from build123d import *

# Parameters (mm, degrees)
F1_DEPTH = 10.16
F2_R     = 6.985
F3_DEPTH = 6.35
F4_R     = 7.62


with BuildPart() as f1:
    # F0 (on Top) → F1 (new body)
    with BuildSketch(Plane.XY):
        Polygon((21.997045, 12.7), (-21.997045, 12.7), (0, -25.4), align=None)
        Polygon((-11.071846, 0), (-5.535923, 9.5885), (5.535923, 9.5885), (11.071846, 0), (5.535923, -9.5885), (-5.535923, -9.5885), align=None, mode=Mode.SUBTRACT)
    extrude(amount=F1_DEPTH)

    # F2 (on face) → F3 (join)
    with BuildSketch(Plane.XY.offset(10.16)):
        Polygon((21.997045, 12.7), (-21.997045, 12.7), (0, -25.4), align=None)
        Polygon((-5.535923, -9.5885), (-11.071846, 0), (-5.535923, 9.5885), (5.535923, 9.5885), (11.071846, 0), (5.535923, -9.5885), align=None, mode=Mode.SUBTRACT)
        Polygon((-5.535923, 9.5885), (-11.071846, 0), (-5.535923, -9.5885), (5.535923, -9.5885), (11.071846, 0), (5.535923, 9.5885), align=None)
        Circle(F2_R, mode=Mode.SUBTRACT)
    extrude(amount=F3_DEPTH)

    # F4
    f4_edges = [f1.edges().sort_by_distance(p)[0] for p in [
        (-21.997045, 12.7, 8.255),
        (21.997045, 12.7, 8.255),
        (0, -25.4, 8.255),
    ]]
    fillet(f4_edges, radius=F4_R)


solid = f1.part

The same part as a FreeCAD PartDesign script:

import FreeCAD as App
import Part
import Sketcher

V = App.Vector
Q = App.Units.Quantity


def edges_at(feature, points):
    """Names of the edges that pass closest to the given points."""
    edges = feature.Shape.Edges
    near = lambda p: min(range(len(edges)), key=lambda i: edges[i].distToShape(Part.Vertex(*p))[0])
    return sorted({f"Edge{near(p) + 1}" for p in points})

doc = App.newDocument("Part")
body = doc.addObject("PartDesign::Body", "Body")

sketch1 = body.newObject("Sketcher::SketchObject", "Sketch")
sketch1.AttachmentSupport = (doc.getObject("XY_Plane"), [""])
sketch1.MapMode = "FlatFace"
sketch1.addGeometry(Part.LineSegment(V(21.997045, 12.7, 0), V(-21.997045, 12.7, 0)), False)
sketch1.addGeometry(Part.LineSegment(V(-21.997045, 12.7, 0), V(0, -25.4, 0)), False)
sketch1.addGeometry(Part.LineSegment(V(0, -25.4, 0), V(21.997045, 12.7, 0)), False)
sketch1.addGeometry(Part.LineSegment(V(-5.535923, -9.5885, 0), V(-11.071846, 0, 0)), False)
sketch1.addGeometry(Part.LineSegment(V(-11.071846, 0, 0), V(-5.535923, 9.5885, 0)), False)
sketch1.addGeometry(Part.LineSegment(V(-5.535923, 9.5885, 0), V(5.535923, 9.5885, 0)), False)
sketch1.addGeometry(Part.LineSegment(V(5.535923, 9.5885, 0), V(11.071846, 0, 0)), False)
sketch1.addGeometry(Part.LineSegment(V(11.071846, 0, 0), V(5.535923, -9.5885, 0)), False)
sketch1.addGeometry(Part.LineSegment(V(5.535923, -9.5885, 0), V(-5.535923, -9.5885, 0)), False)
sketch1.addConstraint(Sketcher.Constraint("Coincident", 0, 2, 1, 1))
sketch1.addConstraint(Sketcher.Constraint("Coincident", 1, 2, 2, 1))
sketch1.addConstraint(Sketcher.Constraint("Coincident", 2, 2, 0, 1))
sketch1.addConstraint(Sketcher.Constraint("Coincident", 3, 2, 4, 1))
sketch1.addConstraint(Sketcher.Constraint("Coincident", 4, 2, 5, 1))
sketch1.addConstraint(Sketcher.Constraint("Coincident", 5, 2, 6, 1))
sketch1.addConstraint(Sketcher.Constraint("Coincident", 6, 2, 7, 1))
sketch1.addConstraint(Sketcher.Constraint("Coincident", 7, 2, 8, 1))
sketch1.addConstraint(Sketcher.Constraint("Coincident", 8, 2, 3, 1))
sketch1.addConstraint(Sketcher.Constraint("Horizontal", 0))
sketch1.addConstraint(Sketcher.Constraint("Horizontal", 5))
sketch1.addConstraint(Sketcher.Constraint("Horizontal", 8))
sketch1.addConstraint(Sketcher.Constraint("Symmetric", 3, 2, 6, 2, -1, 1))
sketch1.addConstraint(Sketcher.Constraint("Symmetric", 4, 2, 7, 2, -1, 1))
sketch1.addConstraint(Sketcher.Constraint("PointOnObject", 1, 2, -2))
sketch1.addConstraint(Sketcher.Constraint("PointOnObject", 3, 2, -1))
sketch1.addConstraint(Sketcher.Constraint("Parallel", 1, 3))
sketch1.addConstraint(Sketcher.Constraint("Parallel", 2, 4))
sketch1.addConstraint(Sketcher.Constraint("Parallel", 3, 6))
sketch1.addConstraint(Sketcher.Constraint("Vertical", 5, 2, 7, 2))
sketch1.addConstraint(Sketcher.Constraint("DistanceY", 1, 2, -1, 1, Q("1 in")))
sketch1.addConstraint(Sketcher.Constraint("Angle", 1, Q("-60 deg")))
sketch1.addConstraint(Sketcher.Constraint("DistanceY", -1, 1, 0, 2, Q("0.5 in")))
sketch1.addConstraint(Sketcher.Constraint("DistanceY", 7, 2, 5, 2, Q("0.755 in")))
sketch1.addConstraint(Sketcher.Constraint("DistanceX", 0, 2, 3, 2, Q("10.925199 mm")))
pad1 = body.newObject("PartDesign::Pad", "Pad")
pad1.Profile = sketch1
pad1.Length = Q("0.4 in")

sketch2 = body.newObject("Sketcher::SketchObject", "Sketch001")
sketch2.AttachmentSupport = (doc.getObject("XY_Plane"), [""])
sketch2.MapMode = "FlatFace"
sketch2.AttachmentOffset = App.Placement(V(0, 0, 0.4 * 25.4), App.Rotation())
sketch2.addGeometry(Part.LineSegment(V(21.997045, 12.7, 0), V(-21.997045, 12.7, 0)), False)
sketch2.addGeometry(Part.LineSegment(V(-21.997045, 12.7, 0), V(0, -25.4, 0)), False)
sketch2.addGeometry(Part.LineSegment(V(0, -25.4, 0), V(21.997045, 12.7, 0)), False)
sketch2.addGeometry(Part.Circle(V(0, 0, 0), V(0, 0, 1), 6.985), False)
sketch2.addConstraint(Sketcher.Constraint("Coincident", 0, 2, 1, 1))
sketch2.addConstraint(Sketcher.Constraint("Coincident", 1, 2, 2, 1))
sketch2.addConstraint(Sketcher.Constraint("Coincident", 2, 2, 0, 1))
sketch2.addConstraint(Sketcher.Constraint("Horizontal", 0))
sketch2.addConstraint(Sketcher.Constraint("Coincident", 3, 3, -1, 1))
sketch2.addConstraint(Sketcher.Constraint("PointOnObject", 1, 2, -2))
sketch2.addConstraint(Sketcher.Constraint("Equal", 1, 2))
sketch2.addConstraint(Sketcher.Constraint("Diameter", 3, Q("0.55 in")))
sketch2.addConstraint(Sketcher.Constraint("DistanceY", 1, 2, -1, 1, Q("1 in")))
sketch2.addConstraint(Sketcher.Constraint("Angle", 1, Q("-60 deg")))
sketch2.addConstraint(Sketcher.Constraint("DistanceY", -1, 1, 0, 2, Q("0.5 in")))
pad2 = body.newObject("PartDesign::Pad", "Pad001")
pad2.Profile = sketch2
pad2.Length = Q("0.25 in")
doc.recompute()

fillet = body.newObject("PartDesign::Fillet", "Fillet")
fillet.Base = (pad2, edges_at(pad2, [(-21.997, 12.7, 8.255), (21.997, 12.7, 8.255), (0, -25.4, 8.255)]))
fillet.Radius = Q("0.3 in")

doc.recompute()
